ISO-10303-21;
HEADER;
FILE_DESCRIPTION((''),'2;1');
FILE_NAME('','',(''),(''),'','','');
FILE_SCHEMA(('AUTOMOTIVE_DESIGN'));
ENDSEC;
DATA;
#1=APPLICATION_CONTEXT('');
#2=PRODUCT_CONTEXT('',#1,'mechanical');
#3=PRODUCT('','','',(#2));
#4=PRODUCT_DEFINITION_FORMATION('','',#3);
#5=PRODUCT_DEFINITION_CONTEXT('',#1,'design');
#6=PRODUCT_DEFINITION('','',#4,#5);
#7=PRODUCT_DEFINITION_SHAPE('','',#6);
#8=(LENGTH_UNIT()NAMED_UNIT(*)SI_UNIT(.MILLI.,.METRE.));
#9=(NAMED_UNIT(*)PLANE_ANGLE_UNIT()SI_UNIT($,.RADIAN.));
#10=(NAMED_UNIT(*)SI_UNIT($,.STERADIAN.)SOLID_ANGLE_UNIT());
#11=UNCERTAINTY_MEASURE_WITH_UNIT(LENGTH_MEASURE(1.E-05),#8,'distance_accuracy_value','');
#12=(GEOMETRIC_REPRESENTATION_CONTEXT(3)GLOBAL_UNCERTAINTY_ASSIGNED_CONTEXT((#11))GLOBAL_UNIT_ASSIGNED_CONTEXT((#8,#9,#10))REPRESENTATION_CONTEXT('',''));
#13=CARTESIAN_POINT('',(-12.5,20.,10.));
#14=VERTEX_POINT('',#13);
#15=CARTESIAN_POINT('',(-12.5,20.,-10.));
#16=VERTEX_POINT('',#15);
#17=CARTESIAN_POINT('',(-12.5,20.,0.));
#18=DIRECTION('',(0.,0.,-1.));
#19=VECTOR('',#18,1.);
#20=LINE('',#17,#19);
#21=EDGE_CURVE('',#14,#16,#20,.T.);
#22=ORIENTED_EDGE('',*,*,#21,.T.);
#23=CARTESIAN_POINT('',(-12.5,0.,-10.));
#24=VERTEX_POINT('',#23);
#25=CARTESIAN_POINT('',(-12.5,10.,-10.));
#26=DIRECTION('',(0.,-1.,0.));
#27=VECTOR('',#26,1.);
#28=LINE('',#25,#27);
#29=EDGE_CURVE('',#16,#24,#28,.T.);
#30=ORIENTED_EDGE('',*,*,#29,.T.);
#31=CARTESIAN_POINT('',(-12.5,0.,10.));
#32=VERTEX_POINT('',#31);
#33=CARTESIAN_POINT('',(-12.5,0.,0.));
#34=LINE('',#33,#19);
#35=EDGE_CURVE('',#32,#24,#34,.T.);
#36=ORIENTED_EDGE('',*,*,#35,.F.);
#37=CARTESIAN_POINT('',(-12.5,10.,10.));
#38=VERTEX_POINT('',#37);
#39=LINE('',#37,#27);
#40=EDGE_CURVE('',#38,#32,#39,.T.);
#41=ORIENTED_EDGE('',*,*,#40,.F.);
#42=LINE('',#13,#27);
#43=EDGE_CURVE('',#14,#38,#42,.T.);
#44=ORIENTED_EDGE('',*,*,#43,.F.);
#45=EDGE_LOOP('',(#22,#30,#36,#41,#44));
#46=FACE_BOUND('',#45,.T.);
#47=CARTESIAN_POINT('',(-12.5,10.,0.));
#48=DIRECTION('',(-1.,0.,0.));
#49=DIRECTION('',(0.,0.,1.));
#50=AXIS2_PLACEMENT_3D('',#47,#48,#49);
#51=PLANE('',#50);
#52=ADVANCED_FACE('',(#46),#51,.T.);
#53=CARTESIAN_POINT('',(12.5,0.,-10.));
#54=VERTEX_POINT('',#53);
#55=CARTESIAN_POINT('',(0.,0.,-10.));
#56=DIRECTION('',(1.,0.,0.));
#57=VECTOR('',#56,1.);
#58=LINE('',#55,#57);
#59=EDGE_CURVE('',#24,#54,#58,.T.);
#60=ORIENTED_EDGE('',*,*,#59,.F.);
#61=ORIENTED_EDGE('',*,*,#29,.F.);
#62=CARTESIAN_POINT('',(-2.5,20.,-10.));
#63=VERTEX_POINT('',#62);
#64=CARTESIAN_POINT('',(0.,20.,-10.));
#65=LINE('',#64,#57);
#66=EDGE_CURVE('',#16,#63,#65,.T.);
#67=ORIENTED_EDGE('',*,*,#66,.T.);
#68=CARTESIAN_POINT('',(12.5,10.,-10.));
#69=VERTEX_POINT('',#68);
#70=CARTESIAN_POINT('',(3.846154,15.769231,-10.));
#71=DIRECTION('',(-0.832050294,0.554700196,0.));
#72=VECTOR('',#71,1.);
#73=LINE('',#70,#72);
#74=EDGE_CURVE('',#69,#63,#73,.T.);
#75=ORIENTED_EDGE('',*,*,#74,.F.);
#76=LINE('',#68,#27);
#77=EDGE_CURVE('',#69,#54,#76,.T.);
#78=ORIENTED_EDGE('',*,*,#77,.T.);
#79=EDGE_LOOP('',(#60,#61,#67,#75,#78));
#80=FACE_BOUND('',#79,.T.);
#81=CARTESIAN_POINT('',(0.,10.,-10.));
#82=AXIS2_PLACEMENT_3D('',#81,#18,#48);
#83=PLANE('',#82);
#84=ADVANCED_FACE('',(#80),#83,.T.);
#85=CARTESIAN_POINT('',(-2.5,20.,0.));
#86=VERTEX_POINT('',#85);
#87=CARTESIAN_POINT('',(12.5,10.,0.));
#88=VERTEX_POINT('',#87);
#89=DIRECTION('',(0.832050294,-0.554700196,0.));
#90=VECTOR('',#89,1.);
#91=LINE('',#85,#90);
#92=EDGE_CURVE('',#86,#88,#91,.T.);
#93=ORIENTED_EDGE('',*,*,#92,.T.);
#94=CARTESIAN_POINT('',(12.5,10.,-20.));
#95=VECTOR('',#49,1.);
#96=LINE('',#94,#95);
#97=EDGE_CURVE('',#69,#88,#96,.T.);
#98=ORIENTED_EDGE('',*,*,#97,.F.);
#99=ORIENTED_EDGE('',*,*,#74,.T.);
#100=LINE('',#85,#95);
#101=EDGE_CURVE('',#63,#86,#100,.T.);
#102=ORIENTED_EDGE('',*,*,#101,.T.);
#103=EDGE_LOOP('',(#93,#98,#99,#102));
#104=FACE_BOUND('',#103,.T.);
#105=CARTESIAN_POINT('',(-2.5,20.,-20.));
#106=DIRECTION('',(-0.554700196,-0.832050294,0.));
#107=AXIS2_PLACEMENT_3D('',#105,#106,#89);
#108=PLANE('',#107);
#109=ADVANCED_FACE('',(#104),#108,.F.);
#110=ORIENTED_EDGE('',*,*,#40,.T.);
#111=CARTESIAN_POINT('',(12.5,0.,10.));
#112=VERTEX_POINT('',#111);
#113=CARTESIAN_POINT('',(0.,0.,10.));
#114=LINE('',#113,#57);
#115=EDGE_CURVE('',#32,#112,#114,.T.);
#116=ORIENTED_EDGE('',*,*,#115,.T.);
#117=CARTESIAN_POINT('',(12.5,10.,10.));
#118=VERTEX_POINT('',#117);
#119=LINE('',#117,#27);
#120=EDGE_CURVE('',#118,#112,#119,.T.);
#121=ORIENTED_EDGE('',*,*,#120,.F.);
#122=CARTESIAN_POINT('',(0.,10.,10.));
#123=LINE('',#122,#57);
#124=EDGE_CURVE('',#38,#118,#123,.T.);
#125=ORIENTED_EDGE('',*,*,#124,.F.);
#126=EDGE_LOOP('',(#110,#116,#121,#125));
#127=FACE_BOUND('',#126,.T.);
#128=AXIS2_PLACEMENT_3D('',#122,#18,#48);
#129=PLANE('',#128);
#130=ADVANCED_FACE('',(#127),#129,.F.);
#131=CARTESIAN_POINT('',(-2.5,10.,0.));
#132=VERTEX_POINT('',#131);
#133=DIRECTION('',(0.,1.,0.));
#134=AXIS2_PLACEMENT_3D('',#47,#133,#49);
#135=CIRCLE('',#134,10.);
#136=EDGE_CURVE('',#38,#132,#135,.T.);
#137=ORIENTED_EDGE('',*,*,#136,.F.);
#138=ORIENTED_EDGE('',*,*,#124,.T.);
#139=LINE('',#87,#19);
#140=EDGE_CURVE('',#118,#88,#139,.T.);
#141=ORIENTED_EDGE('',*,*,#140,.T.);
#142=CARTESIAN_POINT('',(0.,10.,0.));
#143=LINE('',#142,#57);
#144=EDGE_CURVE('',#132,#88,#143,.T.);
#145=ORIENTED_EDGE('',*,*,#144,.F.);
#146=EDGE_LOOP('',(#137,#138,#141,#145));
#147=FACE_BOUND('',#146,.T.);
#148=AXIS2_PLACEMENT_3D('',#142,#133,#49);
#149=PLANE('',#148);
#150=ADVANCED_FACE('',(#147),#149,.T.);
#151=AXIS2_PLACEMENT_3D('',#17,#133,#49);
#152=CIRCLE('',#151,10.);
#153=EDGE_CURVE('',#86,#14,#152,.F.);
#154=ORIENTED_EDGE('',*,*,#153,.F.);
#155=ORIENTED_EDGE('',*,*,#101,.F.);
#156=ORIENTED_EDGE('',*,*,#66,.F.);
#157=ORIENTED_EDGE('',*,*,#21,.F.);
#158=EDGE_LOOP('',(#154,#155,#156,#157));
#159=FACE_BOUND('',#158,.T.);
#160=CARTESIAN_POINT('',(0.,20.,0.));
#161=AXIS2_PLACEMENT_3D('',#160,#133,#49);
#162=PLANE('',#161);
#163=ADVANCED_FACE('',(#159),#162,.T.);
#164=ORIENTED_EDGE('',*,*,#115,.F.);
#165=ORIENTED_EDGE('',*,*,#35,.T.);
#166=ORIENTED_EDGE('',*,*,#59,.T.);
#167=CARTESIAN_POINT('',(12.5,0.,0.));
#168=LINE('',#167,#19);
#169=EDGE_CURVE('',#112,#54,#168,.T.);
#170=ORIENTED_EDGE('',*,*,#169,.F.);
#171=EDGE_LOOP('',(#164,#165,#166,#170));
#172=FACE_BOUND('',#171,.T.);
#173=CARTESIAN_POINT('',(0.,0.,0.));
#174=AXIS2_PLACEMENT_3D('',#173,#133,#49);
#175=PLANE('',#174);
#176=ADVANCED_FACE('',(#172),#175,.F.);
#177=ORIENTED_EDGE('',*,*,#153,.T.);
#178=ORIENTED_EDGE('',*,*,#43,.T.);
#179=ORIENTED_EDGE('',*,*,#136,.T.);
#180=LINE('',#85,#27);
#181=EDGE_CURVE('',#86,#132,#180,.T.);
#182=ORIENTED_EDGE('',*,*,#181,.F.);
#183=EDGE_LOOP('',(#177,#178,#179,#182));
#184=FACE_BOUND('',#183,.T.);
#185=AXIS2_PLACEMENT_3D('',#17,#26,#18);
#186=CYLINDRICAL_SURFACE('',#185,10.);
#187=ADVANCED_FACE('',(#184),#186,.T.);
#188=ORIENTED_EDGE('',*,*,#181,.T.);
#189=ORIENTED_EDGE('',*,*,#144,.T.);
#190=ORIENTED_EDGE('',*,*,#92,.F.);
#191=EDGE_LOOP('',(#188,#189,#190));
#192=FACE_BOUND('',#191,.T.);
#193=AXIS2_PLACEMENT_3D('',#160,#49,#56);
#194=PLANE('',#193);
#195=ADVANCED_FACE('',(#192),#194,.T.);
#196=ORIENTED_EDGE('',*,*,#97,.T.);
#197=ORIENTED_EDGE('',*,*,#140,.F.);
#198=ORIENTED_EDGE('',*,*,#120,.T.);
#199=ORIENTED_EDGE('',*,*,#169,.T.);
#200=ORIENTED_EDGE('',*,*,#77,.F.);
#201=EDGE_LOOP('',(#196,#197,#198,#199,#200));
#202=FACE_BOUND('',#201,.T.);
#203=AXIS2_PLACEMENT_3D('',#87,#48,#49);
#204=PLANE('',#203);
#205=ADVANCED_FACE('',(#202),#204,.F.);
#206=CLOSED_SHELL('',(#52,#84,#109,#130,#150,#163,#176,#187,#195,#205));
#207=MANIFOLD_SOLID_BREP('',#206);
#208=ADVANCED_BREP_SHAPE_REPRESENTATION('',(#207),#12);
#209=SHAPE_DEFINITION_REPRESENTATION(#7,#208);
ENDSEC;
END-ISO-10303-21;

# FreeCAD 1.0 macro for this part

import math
import FreeCAD as App
import Part
import Sketcher
Q = App.Units.Quantity


def add_polygon(sketch, points):
    """Adds a closed chain of lines whose ends are joined by coincident constraints."""
    first, n = sketch.GeometryCount, len(points)
    for a, b in zip(points, points[1:] + points[:1]):
        sketch.addGeometry(Part.LineSegment(App.Vector(*a, 0), App.Vector(*b, 0)), False)
    for i in range(n):
        sketch.addConstraint(Sketcher.Constraint("Coincident", first + i, 2, first + (i + 1) % n, 1))

doc = App.newDocument("Part")
params = doc.addObject("Spreadsheet::Sheet", "Params")
for row, (alias, value) in enumerate([
    ("sketch1_width", "25 mm"),
    ("sketch1_height", "20 mm"),
    ("pad1_length", "10 mm"),
    ("sketch2_radius", "10 mm"),
    ("sketch2_width", "15 mm"),
    ("pad2_length", "20 mm"),
    ("sketch3_width", "15 mm"),
    ("sketch3_height", "10 mm"),
    ("pocket1_length", "20 mm"),
], start=1):
    params.set(f"A{row}", alias)
    params.set(f"B{row}", "=" + value)
    params.setAlias(f"B{row}", alias)

body = doc.addObject("PartDesign::Body", "Body")

# Sketch on XZ plane
sketch1 = body.newObject("Sketcher::SketchObject", "Sketch")
sketch1.AttachmentSupport = (doc.getObject("XZ_Plane"), [""])
sketch1.MapMode = "FlatFace"
add_polygon(sketch1, [(-12.5, -10), (-12.5, 10), (12.5, 10), (12.5, -10)])  # lines 0-3
sketch1.addConstraint(Sketcher.Constraint("Vertical", 0))
sketch1.addConstraint(Sketcher.Constraint("Horizontal", 1))
sketch1.addConstraint(Sketcher.Constraint("Vertical", 2))
sketch1.addConstraint(Sketcher.Constraint("Horizontal", 3))
sketch1.addConstraint(Sketcher.Constraint("Symmetric", 0, 2, 2, 2, -1, 1))
sketch1.addConstraint(Sketcher.Constraint("DistanceX", 1, 1, 1, 2, Q("25 mm")))
sketch1.addConstraint(Sketcher.Constraint("DistanceY", 0, 1, 0, 2, Q("20 mm")))
sketch1.setExpression("Constraints[9]", "Params.sketch1_width")
sketch1.setExpression("Constraints[10]", "Params.sketch1_height")
pad1 = body.newObject("PartDesign::Pad", "Pad")
pad1.Profile = sketch1
pad1.setExpression("Length", "Params.pad1_length")
pad1.Reversed = True

# Sketch on XZ plane
sketch2 = body.newObject("Sketcher::SketchObject", "Sketch001")
sketch2.AttachmentSupport = (doc.getObject("XZ_Plane"), [""])
sketch2.MapMode = "FlatFace"
sketch2.addGeometry(Part.LineSegment(App.Vector(-12.5, -10, 0), App.Vector(-12.5, 10, 0)), False)
sketch2.addGeometry(Part.ArcOfCircle(Part.Circle(App.Vector(-12.5, 0, 0), App.Vector(0, 0, 1), 10), math.radians(0), math.radians(90)), False)
sketch2.addGeometry(Part.LineSegment(App.Vector(-2.5, 0, 0), App.Vector(12.5, 0, 0)), False)
sketch2.addGeometry(Part.LineSegment(App.Vector(12.5, 0, 0), App.Vector(12.5, -10, 0)), False)
sketch2.addGeometry(Part.LineSegment(App.Vector(12.5, -10, 0), App.Vector(-12.5, -10, 0)), False)
sketch2.addConstraint(Sketcher.Constraint("Coincident", 0, 2, 1, 2))
sketch2.addConstraint(Sketcher.Constraint("Coincident", 1, 1, 2, 1))
sketch2.addConstraint(Sketcher.Constraint("Coincident", 2, 2, 3, 1))
sketch2.addConstraint(Sketcher.Constraint("Coincident", 3, 2, 4, 1))
sketch2.addConstraint(Sketcher.Constraint("Coincident", 4, 2, 0, 1))
sketch2.addConstraint(Sketcher.Constraint("Vertical", 0))
sketch2.addConstraint(Sketcher.Constraint("Horizontal", 2))
sketch2.addConstraint(Sketcher.Constraint("Vertical", 3))
sketch2.addConstraint(Sketcher.Constraint("Horizontal", 4))
sketch2.addConstraint(Sketcher.Constraint("Symmetric", 0, 2, 3, 2, -1, 1))
sketch2.addConstraint(Sketcher.Constraint("PointOnObject", 1, 3, -1))
sketch2.addConstraint(Sketcher.Constraint("PointOnObject", 1, 1, -1))
sketch2.addConstraint(Sketcher.Constraint("Vertical", 1, 3, 0, 2))
sketch2.addConstraint(Sketcher.Constraint("Radius", 1, Q("10 mm")))
sketch2.addConstraint(Sketcher.Constraint("DistanceX", 2, 1, 2, 2, Q("15 mm")))
sketch2.setExpression("Constraints[13]", "Params.sketch2_radius")
sketch2.setExpression("Constraints[14]", "Params.sketch2_width")
pad2 = body.newObject("PartDesign::Pad", "Pad001")
pad2.Profile = sketch2
pad2.setExpression("Length", "Params.pad2_length")
pad2.Reversed = True

# Sketch on XY plane
sketch3 = body.newObject("Sketcher::SketchObject", "Sketch002")
sketch3.AttachmentSupport = (doc.getObject("XY_Plane"), [""])
sketch3.MapMode = "FlatFace"
add_polygon(sketch3, [(-2.5, 20), (12.5, 10), (12.5, 20)])  # lines 0-2
sketch3.addConstraint(Sketcher.Constraint("Vertical", 1))
sketch3.addConstraint(Sketcher.Constraint("Horizontal", 2))
sketch3.addConstraint(Sketcher.Constraint("DistanceX", 2, 2, 2, 1, Q("15 mm")))
sketch3.addConstraint(Sketcher.Constraint("DistanceY", 1, 1, 1, 2, Q("10 mm")))
sketch3.addConstraint(Sketcher.Constraint("DistanceY", -1, 1, 0, 2, Q("10 mm")))
sketch3.addConstraint(Sketcher.Constraint("DistanceX", -1, 1, 0, 2, Q("12.5 mm")))
sketch3.setExpression("Constraints[5]", "Params.sketch3_width")
sketch3.setExpression("Constraints[6]", "Params.sketch3_height")
pocket1 = body.newObject("PartDesign::Pocket", "Pocket")
pocket1.Profile = sketch3
pocket1.setExpression("Length", "Params.pocket1_length")

doc.recompute()
